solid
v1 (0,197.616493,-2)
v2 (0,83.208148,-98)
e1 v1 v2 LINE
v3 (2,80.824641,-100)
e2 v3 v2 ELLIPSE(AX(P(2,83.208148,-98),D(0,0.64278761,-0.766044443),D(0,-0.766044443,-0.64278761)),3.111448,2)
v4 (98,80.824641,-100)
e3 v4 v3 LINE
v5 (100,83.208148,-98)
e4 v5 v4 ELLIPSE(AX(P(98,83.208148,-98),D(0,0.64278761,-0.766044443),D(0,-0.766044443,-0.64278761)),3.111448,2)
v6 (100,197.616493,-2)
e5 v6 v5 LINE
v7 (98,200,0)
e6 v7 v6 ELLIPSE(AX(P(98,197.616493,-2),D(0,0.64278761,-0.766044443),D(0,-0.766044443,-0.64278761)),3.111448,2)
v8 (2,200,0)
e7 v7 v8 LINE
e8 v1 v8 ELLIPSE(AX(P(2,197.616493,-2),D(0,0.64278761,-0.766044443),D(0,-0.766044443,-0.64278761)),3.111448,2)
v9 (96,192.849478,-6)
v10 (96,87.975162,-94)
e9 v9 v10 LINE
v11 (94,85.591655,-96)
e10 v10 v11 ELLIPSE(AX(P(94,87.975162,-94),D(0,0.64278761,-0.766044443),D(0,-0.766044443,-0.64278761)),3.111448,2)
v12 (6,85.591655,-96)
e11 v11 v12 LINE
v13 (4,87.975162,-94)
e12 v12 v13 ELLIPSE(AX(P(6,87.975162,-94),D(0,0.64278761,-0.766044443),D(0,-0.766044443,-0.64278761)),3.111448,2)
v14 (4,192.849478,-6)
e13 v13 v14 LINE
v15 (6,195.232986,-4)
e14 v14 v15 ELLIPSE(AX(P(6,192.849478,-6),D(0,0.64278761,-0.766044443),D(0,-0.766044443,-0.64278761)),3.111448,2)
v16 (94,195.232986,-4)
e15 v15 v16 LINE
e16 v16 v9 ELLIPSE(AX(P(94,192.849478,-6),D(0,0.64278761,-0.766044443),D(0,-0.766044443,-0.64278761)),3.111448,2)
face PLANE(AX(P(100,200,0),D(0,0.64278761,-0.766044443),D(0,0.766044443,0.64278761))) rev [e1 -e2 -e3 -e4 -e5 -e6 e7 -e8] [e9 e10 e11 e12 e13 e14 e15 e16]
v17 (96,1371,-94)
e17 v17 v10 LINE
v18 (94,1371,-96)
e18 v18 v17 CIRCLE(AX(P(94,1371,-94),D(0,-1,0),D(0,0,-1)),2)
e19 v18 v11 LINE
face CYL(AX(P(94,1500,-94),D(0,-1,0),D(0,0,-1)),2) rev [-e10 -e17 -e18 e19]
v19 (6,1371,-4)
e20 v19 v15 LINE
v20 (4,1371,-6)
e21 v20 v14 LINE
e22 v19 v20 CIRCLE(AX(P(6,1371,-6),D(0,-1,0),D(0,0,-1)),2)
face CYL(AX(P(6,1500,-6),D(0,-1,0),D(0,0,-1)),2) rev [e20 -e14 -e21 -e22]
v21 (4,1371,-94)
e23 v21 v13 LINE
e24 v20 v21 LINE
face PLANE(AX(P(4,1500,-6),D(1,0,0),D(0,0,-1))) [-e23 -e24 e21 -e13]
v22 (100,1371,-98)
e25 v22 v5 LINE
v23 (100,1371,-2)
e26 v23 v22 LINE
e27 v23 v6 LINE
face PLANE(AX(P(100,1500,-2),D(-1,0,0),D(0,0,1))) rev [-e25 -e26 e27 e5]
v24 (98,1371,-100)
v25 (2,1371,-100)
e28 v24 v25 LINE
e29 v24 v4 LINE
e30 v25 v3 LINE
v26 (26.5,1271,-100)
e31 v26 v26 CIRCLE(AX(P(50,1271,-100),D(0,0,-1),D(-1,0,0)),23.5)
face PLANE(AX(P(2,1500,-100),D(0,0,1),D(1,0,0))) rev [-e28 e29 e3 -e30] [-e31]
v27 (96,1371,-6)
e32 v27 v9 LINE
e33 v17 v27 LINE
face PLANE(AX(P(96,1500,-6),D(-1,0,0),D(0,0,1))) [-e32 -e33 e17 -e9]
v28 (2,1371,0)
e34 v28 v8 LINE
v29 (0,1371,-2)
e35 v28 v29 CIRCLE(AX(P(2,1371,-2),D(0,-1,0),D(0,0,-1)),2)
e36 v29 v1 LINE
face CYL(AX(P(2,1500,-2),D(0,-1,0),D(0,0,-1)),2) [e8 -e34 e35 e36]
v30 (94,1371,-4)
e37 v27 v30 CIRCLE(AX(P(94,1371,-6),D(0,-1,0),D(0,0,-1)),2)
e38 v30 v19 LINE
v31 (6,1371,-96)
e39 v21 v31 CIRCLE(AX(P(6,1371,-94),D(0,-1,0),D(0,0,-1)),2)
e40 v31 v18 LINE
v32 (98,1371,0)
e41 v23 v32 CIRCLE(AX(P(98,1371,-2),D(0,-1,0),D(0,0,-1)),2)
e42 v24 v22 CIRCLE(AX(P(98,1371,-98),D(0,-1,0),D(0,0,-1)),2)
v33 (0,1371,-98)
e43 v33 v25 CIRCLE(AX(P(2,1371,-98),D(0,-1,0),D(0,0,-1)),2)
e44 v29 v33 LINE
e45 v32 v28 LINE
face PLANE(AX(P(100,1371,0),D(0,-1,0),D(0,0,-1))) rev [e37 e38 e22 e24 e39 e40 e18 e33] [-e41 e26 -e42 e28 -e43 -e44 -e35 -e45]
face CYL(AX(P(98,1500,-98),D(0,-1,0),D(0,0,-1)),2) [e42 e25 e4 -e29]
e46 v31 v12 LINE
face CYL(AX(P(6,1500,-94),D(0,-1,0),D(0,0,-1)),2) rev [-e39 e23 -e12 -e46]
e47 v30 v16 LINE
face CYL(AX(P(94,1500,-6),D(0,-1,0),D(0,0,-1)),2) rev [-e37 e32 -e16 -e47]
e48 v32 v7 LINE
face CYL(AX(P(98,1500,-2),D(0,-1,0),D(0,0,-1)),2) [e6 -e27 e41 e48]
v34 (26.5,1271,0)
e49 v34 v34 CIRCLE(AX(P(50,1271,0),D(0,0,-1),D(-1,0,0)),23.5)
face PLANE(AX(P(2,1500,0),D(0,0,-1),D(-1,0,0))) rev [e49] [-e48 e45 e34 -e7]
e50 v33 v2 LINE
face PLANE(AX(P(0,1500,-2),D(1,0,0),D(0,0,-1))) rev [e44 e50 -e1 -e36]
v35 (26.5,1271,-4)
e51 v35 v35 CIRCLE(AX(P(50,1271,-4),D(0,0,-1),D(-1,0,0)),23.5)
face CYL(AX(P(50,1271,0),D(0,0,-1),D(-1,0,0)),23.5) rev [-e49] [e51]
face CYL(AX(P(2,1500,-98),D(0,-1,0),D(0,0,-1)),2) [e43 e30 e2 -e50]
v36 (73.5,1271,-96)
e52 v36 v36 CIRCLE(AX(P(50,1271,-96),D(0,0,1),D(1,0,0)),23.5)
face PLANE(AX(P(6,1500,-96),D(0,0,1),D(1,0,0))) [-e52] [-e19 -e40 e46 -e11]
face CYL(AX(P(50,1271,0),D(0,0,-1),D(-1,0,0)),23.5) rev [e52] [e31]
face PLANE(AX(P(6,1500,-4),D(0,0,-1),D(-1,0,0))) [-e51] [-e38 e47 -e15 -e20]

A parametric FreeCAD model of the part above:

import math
import FreeCAD as App
import Part
import Sketcher
Q = App.Units.Quantity

doc = App.newDocument("Part")
body = doc.addObject("PartDesign::Body", "Body")

# Sketch on XZ plane
sketch1 = body.newObject("Sketcher::SketchObject", "Sketch")
sketch1.AttachmentSupport = (doc.getObject("XZ_Plane"), [""])
sketch1.MapMode = "FlatFace"
sketch1.addGeometry([
    Part.LineSegment(App.Vector(2, 0, 0), App.Vector(98, 0, 0)),  # 0
    Part.ArcOfCircle(Part.Circle(App.Vector(98, -2, 0), App.Vector(0, 0, 1), 2), math.radians(0), math.radians(90)),  # 1
    Part.LineSegment(App.Vector(100, -2, 0), App.Vector(100, -98, 0)),  # 2
    Part.ArcOfCircle(Part.Circle(App.Vector(98, -98, 0), App.Vector(0, 0, 1), 2), math.radians(-90), math.radians(0)),  # 3
    Part.LineSegment(App.Vector(98, -100, 0), App.Vector(2, -100, 0)),  # 4
    Part.ArcOfCircle(Part.Circle(App.Vector(2, -98, 0), App.Vector(0, 0, 1), 2), math.radians(-180), math.radians(-90)),  # 5
    Part.LineSegment(App.Vector(0, -98, 0), App.Vector(0, -2, 0)),  # 6
    Part.ArcOfCircle(Part.Circle(App.Vector(2, -2, 0), App.Vector(0, 0, 1), 2), math.radians(90), math.radians(180)),  # 7
    Part.ArcOfCircle(Part.Circle(App.Vector(6, -94, 0), App.Vector(0, 0, 1), 2), math.radians(-180), math.radians(-90)),  # 8
    Part.LineSegment(App.Vector(6, -96, 0), App.Vector(94, -96, 0)),  # 9
    Part.ArcOfCircle(Part.Circle(App.Vector(94, -94, 0), App.Vector(0, 0, 1), 2), math.radians(-90), math.radians(0)),  # 10
    Part.LineSegment(App.Vector(96, -94, 0), App.Vector(96, -6, 0)),  # 11
    Part.ArcOfCircle(Part.Circle(App.Vector(94, -6, 0), App.Vector(0, 0, 1), 2), math.radians(0), math.radians(90)),  # 12
    Part.LineSegment(App.Vector(94, -4, 0), App.Vector(6, -4, 0)),  # 13
    Part.ArcOfCircle(Part.Circle(App.Vector(6, -6, 0), App.Vector(0, 0, 1), 2), math.radians(90), math.radians(180)),  # 14
    Part.LineSegment(App.Vector(4, -6, 0), App.Vector(4, -94, 0)),  # 15
], False)
sketch1.addConstraint([
    Sketcher.Constraint("Tangent", 0, 2, 1, 2),
    Sketcher.Constraint("Tangent", 1, 1, 2, 1),
    Sketcher.Constraint("Tangent", 2, 2, 3, 2),
    Sketcher.Constraint("Tangent", 3, 1, 4, 1),
    Sketcher.Constraint("Tangent", 4, 2, 5, 2),
    Sketcher.Constraint("Tangent", 5, 1, 6, 1),
    Sketcher.Constraint("Tangent", 6, 2, 7, 2),
    Sketcher.Constraint("Tangent", 7, 1, 0, 1),
    Sketcher.Constraint("Tangent", 8, 2, 9, 1),
    Sketcher.Constraint("Tangent", 9, 2, 10, 1),
    Sketcher.Constraint("Tangent", 10, 2, 11, 1),
    Sketcher.Constraint("Tangent", 11, 2, 12, 1),
    Sketcher.Constraint("Tangent", 12, 2, 13, 1),
    Sketcher.Constraint("Tangent", 13, 2, 14, 1),
    Sketcher.Constraint("Tangent", 14, 2, 15, 1),
    Sketcher.Constraint("Tangent", 15, 2, 8, 1),
    Sketcher.Constraint("Horizontal", 0),
    Sketcher.Constraint("Vertical", 2),
    Sketcher.Constraint("Horizontal", 4),
    Sketcher.Constraint("Vertical", 6),
    Sketcher.Constraint("Horizontal", 9),
    Sketcher.Constraint("Vertical", 11),
    Sketcher.Constraint("Horizontal", 13),
    Sketcher.Constraint("Vertical", 15),
    Sketcher.Constraint("Equal", 1, 3),
    Sketcher.Constraint("Equal", 3, 5),
    Sketcher.Constraint("Equal", 5, 7),
    Sketcher.Constraint("Equal", 7, 8),
    Sketcher.Constraint("Equal", 8, 10),
    Sketcher.Constraint("Equal", 10, 12),
    Sketcher.Constraint("Equal", 12, 14),
    Sketcher.Constraint("PointOnObject", 0, 2, -1),
    Sketcher.Constraint("PointOnObject", 5, 1, -2),
    Sketcher.Constraint("Equal", 4, 2),
    Sketcher.Constraint("Equal", 13, 11),
    Sketcher.Constraint("Radius", 1, Q("2 mm")),
    Sketcher.Constraint("DistanceX", 0, 1, 0, 2, Q("96 mm")),
    Sketcher.Constraint("DistanceX", 9, 1, 9, 2, Q("88 mm")),
    Sketcher.Constraint("DistanceX", -1, 1, 8, 3, Q("6 mm")),
    Sketcher.Constraint("DistanceY", 8, 3, -1, 1, Q("94 mm")),
])
pad1 = body.newObject("PartDesign::Pad", "Pad")
pad1.Profile = sketch1
pad1.Length = 1500
pad1.Reversed = True

# Sketch on YZ plane
sketch2 = body.newObject("Sketcher::SketchObject", "Sketch001")
sketch2.AttachmentSupport = (doc.getObject("YZ_Plane"), [""])
sketch2.MapMode = "FlatFace"
sketch2.addGeometry([
    Part.LineSegment(App.Vector(200, 0, 0), App.Vector(-46, -207, 0)),
    Part.LineSegment(App.Vector(-46, -207, 0), App.Vector(-46, 115, 0)),
    Part.LineSegment(App.Vector(-46, 115, 0), App.Vector(200, 115, 0)),
    Part.LineSegment(App.Vector(200, 115, 0), App.Vector(200, 0, 0)),
], False)
sketch2.addConstraint([
    Sketcher.Constraint("Coincident", 0, 2, 1, 1),
    Sketcher.Constraint("Coincident", 1, 2, 2, 1),
    Sketcher.Constraint("Coincident", 2, 2, 3, 1),
    Sketcher.Constraint("Coincident", 3, 2, 0, 1),
    Sketcher.Constraint("Vertical", 1),
    Sketcher.Constraint("Horizontal", 2),
    Sketcher.Constraint("Vertical", 3),
    Sketcher.Constraint("PointOnObject", 3, 2, -1),
    Sketcher.Constraint("Angle", 0, Q("-140 deg")),
    Sketcher.Constraint("DistanceX", -1, 1, 2, 2, Q("200 mm")),
    Sketcher.Constraint("DistanceX", 2, 1, 2, 2, Q("246.455791 mm")),
    Sketcher.Constraint("DistanceY", 1, 1, 1, 2, Q("321.352988 mm")),
])
pocket1 = body.newObject("PartDesign::Pocket", "Pocket")
pocket1.Profile = sketch2
pocket1.Type = "ThroughAll"
pocket1.Reversed = True

# Sketch on XY plane
sketch3 = body.newObject("Sketcher::SketchObject", "Sketch002")
sketch3.AttachmentSupport = (doc.getObject("XY_Plane"), [""])
sketch3.MapMode = "FlatFace"
sketch3.AttachmentOffset = App.Placement(App.Vector(0, 0, -100), App.Rotation())
sketch3.addGeometry(Part.Circle(App.Vector(50, 1271, 0), App.Vector(0, 0, 1), 24), False)
sketch3.addConstraint([
    Sketcher.Constraint("Diameter", 0, Q("47 mm")),
    Sketcher.Constraint("DistanceX", -1, 1, 0, 3, Q("50 mm")),
    Sketcher.Constraint("DistanceY", -1, 1, 0, 3, Q("1271 mm")),
])
pocket2 = body.newObject("PartDesign::Pocket", "Pocket001")
pocket2.Profile = sketch3
pocket2.Type = "ThroughAll"
pocket2.Reversed = True

# Sketch on XY plane
sketch4 = body.newObject("Sketcher::SketchObject", "Sketch003")
sketch4.AttachmentSupport = (doc.getObject("XY_Plane"), [""])
sketch4.MapMode = "FlatFace"
sketch4.AttachmentOffset = App.Placement(App.Vector(0, 0, -100), App.Rotation())
sketch4.addGeometry([
    Part.LineSegment(App.Vector(100, 1500, 0), App.Vector(100, 1371, 0)),
    Part.LineSegment(App.Vector(100, 1371, 0), App.Vector(0, 1371, 0)),
    Part.LineSegment(App.Vector(0, 1371, 0), App.Vector(0, 1500, 0)),
    Part.LineSegment(App.Vector(0, 1500, 0), App.Vector(100, 1500, 0)),
], False)
sketch4.addConstraint([
    Sketcher.Constraint("Coincident", 0, 2, 1, 1),
    Sketcher.Constraint("Coincident", 1, 2, 2, 1),
    Sketcher.Constraint("Coincident", 2, 2, 3, 1),
    Sketcher.Constraint("Coincident", 3, 2, 0, 1),
    Sketcher.Constraint("Vertical", 0),
    Sketcher.Constraint("Horizontal", 1),
    Sketcher.Constraint("Vertical", 2),
    Sketcher.Constraint("Horizontal", 3),
    Sketcher.Constraint("PointOnObject", 1, 2, -2),
    Sketcher.Constraint("DistanceX", 1, 2, 1, 1, Q("100 mm")),
    Sketcher.Constraint("DistanceY", 0, 2, 0, 1, Q("129 mm")),
    Sketcher.Constraint("DistanceY", -1, 1, 0, 2, Q("1371 mm")),
])
pocket3 = body.newObject("PartDesign::Pocket", "Pocket002")
pocket3.Profile = sketch4
pocket3.Type = "ThroughAll"
pocket3.Reversed = True

doc.recompute()
